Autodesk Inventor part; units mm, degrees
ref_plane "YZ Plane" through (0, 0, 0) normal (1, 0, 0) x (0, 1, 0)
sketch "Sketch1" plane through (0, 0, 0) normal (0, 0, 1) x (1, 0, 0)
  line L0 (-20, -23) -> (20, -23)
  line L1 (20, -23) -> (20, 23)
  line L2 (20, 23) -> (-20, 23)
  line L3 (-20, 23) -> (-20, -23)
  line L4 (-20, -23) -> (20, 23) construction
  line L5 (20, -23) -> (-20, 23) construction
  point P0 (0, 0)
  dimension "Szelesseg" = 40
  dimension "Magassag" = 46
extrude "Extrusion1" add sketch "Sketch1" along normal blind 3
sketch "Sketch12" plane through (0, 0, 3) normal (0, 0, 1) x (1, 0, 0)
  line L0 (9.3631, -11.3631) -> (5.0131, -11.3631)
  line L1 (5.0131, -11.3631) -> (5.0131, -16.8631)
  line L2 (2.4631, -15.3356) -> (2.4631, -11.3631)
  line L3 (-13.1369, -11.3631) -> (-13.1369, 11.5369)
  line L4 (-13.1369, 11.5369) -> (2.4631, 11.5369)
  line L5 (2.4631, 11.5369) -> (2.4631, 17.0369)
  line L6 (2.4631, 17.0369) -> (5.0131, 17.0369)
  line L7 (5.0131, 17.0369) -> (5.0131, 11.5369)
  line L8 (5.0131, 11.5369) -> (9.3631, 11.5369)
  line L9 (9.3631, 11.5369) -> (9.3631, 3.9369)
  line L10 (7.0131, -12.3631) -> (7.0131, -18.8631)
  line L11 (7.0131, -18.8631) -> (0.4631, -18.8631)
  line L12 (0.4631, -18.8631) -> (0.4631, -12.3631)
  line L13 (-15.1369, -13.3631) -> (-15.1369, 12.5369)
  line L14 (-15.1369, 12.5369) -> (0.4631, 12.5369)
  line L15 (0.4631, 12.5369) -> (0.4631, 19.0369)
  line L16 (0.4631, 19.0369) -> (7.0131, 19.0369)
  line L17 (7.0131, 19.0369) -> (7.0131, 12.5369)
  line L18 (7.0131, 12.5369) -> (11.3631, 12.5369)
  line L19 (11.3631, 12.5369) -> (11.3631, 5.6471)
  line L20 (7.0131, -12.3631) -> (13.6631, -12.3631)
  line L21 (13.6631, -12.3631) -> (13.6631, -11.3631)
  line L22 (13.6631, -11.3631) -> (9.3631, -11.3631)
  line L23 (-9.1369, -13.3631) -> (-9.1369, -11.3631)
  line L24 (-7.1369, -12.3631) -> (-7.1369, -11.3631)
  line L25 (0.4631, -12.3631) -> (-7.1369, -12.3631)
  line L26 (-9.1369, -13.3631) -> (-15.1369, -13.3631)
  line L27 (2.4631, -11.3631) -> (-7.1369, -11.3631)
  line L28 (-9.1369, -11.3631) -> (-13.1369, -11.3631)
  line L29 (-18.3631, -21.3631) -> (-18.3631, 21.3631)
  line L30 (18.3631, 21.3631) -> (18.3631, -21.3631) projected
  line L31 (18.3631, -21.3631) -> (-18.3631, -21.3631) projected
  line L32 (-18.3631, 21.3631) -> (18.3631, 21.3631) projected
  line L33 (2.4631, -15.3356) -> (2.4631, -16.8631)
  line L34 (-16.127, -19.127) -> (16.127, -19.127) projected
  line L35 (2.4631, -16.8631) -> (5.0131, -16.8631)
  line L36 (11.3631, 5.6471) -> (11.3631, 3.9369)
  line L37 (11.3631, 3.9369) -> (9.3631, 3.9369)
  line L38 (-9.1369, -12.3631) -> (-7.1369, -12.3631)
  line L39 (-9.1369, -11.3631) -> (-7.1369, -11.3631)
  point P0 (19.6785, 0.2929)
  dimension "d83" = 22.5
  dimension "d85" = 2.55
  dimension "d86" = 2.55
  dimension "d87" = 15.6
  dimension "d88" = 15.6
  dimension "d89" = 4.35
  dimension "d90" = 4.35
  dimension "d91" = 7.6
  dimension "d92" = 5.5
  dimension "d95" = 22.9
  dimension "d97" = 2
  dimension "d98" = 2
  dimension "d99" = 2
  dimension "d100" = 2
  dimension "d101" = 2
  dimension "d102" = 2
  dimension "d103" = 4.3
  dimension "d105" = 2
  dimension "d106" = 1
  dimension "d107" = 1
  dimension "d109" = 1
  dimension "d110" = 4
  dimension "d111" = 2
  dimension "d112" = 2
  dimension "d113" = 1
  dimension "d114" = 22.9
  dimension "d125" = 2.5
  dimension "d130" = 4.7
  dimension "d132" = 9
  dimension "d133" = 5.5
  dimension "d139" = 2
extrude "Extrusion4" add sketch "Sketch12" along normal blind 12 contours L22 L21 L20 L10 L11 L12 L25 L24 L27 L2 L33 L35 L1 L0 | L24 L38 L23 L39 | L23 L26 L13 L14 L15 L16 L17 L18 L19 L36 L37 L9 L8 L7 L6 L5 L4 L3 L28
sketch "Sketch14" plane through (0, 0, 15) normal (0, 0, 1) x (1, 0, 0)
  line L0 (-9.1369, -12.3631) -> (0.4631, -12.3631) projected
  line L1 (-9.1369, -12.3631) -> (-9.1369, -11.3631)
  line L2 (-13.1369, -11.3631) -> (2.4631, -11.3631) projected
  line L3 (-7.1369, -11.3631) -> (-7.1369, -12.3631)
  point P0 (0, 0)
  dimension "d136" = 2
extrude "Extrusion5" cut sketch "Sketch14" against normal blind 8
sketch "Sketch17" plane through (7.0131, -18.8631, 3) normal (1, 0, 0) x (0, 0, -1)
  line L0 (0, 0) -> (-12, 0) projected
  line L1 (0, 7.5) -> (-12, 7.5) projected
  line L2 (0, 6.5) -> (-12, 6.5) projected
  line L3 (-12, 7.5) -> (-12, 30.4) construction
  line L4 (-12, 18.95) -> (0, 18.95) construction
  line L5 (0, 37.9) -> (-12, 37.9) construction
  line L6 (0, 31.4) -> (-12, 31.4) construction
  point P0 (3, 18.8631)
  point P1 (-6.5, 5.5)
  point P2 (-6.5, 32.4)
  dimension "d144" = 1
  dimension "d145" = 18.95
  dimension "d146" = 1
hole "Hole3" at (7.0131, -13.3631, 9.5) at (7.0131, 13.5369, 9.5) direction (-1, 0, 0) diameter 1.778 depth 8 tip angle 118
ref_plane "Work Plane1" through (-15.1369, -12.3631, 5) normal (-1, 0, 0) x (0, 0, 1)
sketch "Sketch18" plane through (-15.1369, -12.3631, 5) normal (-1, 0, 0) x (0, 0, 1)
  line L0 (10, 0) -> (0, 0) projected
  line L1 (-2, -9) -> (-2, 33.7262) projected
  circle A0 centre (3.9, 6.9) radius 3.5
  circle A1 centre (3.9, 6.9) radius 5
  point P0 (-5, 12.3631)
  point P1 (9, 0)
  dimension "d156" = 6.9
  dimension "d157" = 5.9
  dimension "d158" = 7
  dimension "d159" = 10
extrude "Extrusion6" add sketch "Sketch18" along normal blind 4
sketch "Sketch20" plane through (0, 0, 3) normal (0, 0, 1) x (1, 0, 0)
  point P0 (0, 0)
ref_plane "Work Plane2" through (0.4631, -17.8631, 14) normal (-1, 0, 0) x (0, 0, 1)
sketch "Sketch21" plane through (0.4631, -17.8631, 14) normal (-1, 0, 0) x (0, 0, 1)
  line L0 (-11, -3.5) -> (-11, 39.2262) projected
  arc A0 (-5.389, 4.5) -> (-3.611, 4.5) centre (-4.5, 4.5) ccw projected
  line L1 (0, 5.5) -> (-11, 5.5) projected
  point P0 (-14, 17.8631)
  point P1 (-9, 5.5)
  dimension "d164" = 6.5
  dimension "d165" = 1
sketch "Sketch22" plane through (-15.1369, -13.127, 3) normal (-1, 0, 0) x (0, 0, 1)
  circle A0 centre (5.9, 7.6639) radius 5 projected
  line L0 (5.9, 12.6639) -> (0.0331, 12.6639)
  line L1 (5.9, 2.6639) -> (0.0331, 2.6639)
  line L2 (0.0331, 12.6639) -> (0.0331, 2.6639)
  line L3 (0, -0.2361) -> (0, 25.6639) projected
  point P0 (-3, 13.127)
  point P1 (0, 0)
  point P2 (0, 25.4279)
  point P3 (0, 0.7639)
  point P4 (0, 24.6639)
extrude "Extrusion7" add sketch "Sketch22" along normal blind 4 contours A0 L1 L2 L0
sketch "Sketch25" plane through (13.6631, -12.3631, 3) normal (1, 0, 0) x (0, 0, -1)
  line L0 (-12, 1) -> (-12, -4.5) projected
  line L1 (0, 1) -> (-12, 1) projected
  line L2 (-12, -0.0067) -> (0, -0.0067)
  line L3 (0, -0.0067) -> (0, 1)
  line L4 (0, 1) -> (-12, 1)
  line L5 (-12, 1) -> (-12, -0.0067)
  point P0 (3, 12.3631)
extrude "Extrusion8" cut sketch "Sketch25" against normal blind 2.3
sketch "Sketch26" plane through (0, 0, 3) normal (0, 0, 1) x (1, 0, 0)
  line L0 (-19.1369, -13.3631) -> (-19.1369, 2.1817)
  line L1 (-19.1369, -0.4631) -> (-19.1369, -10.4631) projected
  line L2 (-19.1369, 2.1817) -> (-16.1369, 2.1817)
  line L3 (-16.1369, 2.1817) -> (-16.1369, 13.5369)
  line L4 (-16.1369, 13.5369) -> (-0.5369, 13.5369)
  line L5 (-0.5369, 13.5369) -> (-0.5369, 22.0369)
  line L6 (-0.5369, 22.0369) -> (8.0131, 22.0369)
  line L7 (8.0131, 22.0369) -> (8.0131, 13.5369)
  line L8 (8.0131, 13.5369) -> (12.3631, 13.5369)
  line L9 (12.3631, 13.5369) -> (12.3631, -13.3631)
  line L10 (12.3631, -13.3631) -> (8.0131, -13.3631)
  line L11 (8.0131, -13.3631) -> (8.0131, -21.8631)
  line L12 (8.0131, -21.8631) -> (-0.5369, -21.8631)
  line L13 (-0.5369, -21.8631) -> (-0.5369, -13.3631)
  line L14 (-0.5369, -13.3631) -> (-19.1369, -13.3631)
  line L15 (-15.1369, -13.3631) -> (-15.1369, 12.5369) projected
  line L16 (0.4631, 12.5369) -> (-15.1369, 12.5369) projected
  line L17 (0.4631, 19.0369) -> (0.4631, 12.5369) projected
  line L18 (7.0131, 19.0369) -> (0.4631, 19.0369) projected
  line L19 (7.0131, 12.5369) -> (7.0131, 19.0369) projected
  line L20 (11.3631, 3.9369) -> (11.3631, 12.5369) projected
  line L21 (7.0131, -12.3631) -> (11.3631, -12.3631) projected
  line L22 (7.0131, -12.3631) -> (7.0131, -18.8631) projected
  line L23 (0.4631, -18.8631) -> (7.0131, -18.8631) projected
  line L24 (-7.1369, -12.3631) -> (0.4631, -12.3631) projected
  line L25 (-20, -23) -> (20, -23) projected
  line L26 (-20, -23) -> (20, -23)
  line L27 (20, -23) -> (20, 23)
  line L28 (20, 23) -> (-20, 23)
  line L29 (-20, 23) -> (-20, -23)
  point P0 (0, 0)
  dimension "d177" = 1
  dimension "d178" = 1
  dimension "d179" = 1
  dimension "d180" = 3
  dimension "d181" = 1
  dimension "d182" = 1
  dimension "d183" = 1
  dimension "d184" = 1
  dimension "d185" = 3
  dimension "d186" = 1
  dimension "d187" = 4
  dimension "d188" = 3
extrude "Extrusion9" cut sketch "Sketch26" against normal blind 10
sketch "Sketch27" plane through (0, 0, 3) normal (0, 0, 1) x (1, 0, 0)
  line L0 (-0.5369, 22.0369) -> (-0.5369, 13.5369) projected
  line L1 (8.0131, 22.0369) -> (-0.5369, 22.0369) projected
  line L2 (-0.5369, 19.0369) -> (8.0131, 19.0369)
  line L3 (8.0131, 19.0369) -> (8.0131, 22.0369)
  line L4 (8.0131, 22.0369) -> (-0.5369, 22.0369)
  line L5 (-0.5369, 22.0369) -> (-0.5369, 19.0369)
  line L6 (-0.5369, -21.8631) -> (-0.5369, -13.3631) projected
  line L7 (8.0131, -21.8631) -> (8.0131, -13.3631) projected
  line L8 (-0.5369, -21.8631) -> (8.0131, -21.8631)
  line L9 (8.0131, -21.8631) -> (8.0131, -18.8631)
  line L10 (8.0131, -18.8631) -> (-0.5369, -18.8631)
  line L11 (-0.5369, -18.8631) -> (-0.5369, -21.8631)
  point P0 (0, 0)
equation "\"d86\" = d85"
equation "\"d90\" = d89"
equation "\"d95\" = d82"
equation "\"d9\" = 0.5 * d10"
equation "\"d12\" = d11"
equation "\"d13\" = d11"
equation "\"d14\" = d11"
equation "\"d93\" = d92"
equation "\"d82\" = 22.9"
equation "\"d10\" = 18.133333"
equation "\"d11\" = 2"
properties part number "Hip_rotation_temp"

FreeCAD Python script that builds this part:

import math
import FreeCAD as App
import Part
import Sketcher
from FreeCAD import Vector


def add_polygon(sketch, points):
    """Adds a closed chain of lines whose ends are joined by coincident constraints."""
    first, n = sketch.GeometryCount, len(points)
    for a, b in zip(points, points[1:] + points[:1]):
        sketch.addGeometry(Part.LineSegment(App.Vector(*a, 0), App.Vector(*b, 0)), False)
    for i in range(n):
        sketch.addConstraint(Sketcher.Constraint("Coincident", first + i, 2, first + (i + 1) % n, 1))

doc = App.newDocument("Part")
body = doc.addObject("PartDesign::Body", "Body")

# Sketch on XY plane
sketch1 = body.newObject("Sketcher::SketchObject", "Sketch")
sketch1.AttachmentSupport = (doc.getObject("XY_Plane"), [""])
sketch1.MapMode = "FlatFace"
add_polygon(sketch1, [(-20, 23), (-20, -23), (20, -23), (20, 23)])  # lines 0-3
sketch1.addConstraint(Sketcher.Constraint("Vertical", 0))
sketch1.addConstraint(Sketcher.Constraint("Horizontal", 1))
sketch1.addConstraint(Sketcher.Constraint("Vertical", 2))
sketch1.addConstraint(Sketcher.Constraint("Horizontal", 3))
sketch1.addConstraint(Sketcher.Constraint("Symmetric", 0, 2, 2, 2, -1, 1))
sketch1.addConstraint(Sketcher.Constraint("DistanceX", 1, 1, 1, 2, 40.0))
sketch1.addConstraint(Sketcher.Constraint("DistanceY", 0, 2, 0, 1, 46.0))
pad1 = body.newObject("PartDesign::Pad", "Pad")
pad1.Profile = sketch1
pad1.Length = 3

# Sketch on XY plane
sketch2 = body.newObject("Sketcher::SketchObject", "Sketch001")
sketch2.AttachmentSupport = (doc.getObject("XY_Plane"), [""])
sketch2.MapMode = "FlatFace"
sketch2.AttachmentOffset = App.Placement(Vector(0, 0, 3), App.Rotation())
add_polygon(sketch2, [(13.7, -11.4), (5, -11.4), (5, -16.9), (2.5, -16.9), (2.5, -11.4), (-13.1, -11.4), (-13.1, 11.5), (2.5, 11.5), (2.5, 17), (5, 17), (5, 11.5), (9.4, 11.5), (9.4, 3.9), (11.4, 3.9), (11.4, 12.5), (7, 12.5), (7, 19), (0.5, 19), (0.5, 12.5), (-15.1, 12.5), (-15.1, -13.4), (-9.1, -13.4), (-9.1, -12.4), (0.5, -12.4), (0.5, -18.9), (7, -18.9), (7, -12.4), (13.7, -12.4)])  # lines 0-27
sketch2.addConstraint(Sketcher.Constraint("Horizontal", 0))
sketch2.addConstraint(Sketcher.Constraint("Vertical", 1))
sketch2.addConstraint(Sketcher.Constraint("Horizontal", 2))
sketch2.addConstraint(Sketcher.Constraint("Vertical", 3))
sketch2.addConstraint(Sketcher.Constraint("Horizontal", 4))
sketch2.addConstraint(Sketcher.Constraint("Vertical", 5))
sketch2.addConstraint(Sketcher.Constraint("Horizontal", 6))
sketch2.addConstraint(Sketcher.Constraint("Vertical", 7))
sketch2.addConstraint(Sketcher.Constraint("Horizontal", 8))
sketch2.addConstraint(Sketcher.Constraint("Vertical", 9))
sketch2.addConstraint(Sketcher.Constraint("Horizontal", 10))
sketch2.addConstraint(Sketcher.Constraint("Vertical", 11))
sketch2.addConstraint(Sketcher.Constraint("Horizontal", 12))
sketch2.addConstraint(Sketcher.Constraint("Vertical", 13))
sketch2.addConstraint(Sketcher.Constraint("Horizontal", 14))
sketch2.addConstraint(Sketcher.Constraint("Vertical", 15))
sketch2.addConstraint(Sketcher.Constraint("Horizontal", 16))
sketch2.addConstraint(Sketcher.Constraint("Vertical", 17))
sketch2.addConstraint(Sketcher.Constraint("Horizontal", 18))
sketch2.addConstraint(Sketcher.Constraint("Vertical", 19))
sketch2.addConstraint(Sketcher.Constraint("Horizontal", 20))
sketch2.addConstraint(Sketcher.Constraint("Vertical", 21))
sketch2.addConstraint(Sketcher.Constraint("Horizontal", 22))
sketch2.addConstraint(Sketcher.Constraint("Vertical", 23))
sketch2.addConstraint(Sketcher.Constraint("Horizontal", 24))
sketch2.addConstraint(Sketcher.Constraint("Vertical", 25))
sketch2.addConstraint(Sketcher.Constraint("Horizontal", 26))
sketch2.addConstraint(Sketcher.Constraint("Vertical", 27))
sketch2.addConstraint(Sketcher.Constraint("Horizontal", 0, 2, 3, 2))
sketch2.addConstraint(Sketcher.Constraint("Horizontal", 6, 2, 9, 2))
sketch2.addConstraint(Sketcher.Constraint("Horizontal", 14, 2, 17, 2))
sketch2.addConstraint(Sketcher.Constraint("Horizontal", 22, 2, 25, 2))
sketch2.addConstraint(Sketcher.Constraint("Vertical", 3, 2, 6, 2))
sketch2.addConstraint(Sketcher.Constraint("Vertical", 1, 2, 8, 2))
sketch2.addConstraint(Sketcher.Constraint("Vertical", 17, 2, 22, 2))
sketch2.addConstraint(Sketcher.Constraint("Vertical", 15, 2, 24, 2))
sketch2.addConstraint(Sketcher.Constraint("Equal", 10, 14))
sketch2.addConstraint(Sketcher.Constraint("Equal", 6, 18))
sketch2.addConstraint(Sketcher.Constraint("Equal", 3, 7))
sketch2.addConstraint(Sketcher.Constraint("Equal", 17, 23))
sketch2.addConstraint(Sketcher.Constraint("Equal", 21, 27))
sketch2.addConstraint(Sketcher.Constraint("DistanceX", 12, 1, 12, 2, 2.0))
sketch2.addConstraint(Sketcher.Constraint("DistanceY", 21, 1, 21, 2, 1.0))
sketch2.addConstraint(Sketcher.Constraint("DistanceX", 4, 2, 4, 1, 15.6))
sketch2.addConstraint(Sketcher.Constraint("DistanceY", 1, 2, 1, 1, 5.5))
sketch2.addConstraint(Sketcher.Constraint("DistanceY", 5, 1, 5, 2, 22.9))
sketch2.addConstraint(Sketcher.Constraint("DistanceY", 11, 2, 11, 1, 7.6))
sketch2.addConstraint(Sketcher.Constraint("DistanceY", 10, 2, 13, 2, 1.0))
sketch2.addConstraint(Sketcher.Constraint("DistanceY", 8, 2, 15, 2, 2.0))
sketch2.addConstraint(Sketcher.Constraint("DistanceX", 16, 2, 7, 2, 2.0))
sketch2.addConstraint(Sketcher.Constraint("DistanceX", 4, 2, 20, 2, 4.0))
sketch2.addConstraint(Sketcher.Constraint("DistanceX", 2, 2, 2, 1, 2.55))
sketch2.addConstraint(Sketcher.Constraint("DistanceX", 10, 1, 10, 2, 4.35))
sketch2.addConstraint(Sketcher.Constraint("DistanceX", 0, 2, 0, 1, 8.65))
sketch2.addConstraint(Sketcher.Constraint("DistanceX", -1, 1, 0, 2, 5.013))
sketch2.addConstraint(Sketcher.Constraint("DistanceY", 0, 2, -1, 1, 11.363))
pad2 = body.newObject("PartDesign::Pad", "Pad001")
pad2.Profile = sketch2
pad2.Length = 12

# Sketch on XY plane
sketch3 = body.newObject("Sketcher::SketchObject", "Sketch002")
sketch3.AttachmentSupport = (doc.getObject("XY_Plane"), [""])
sketch3.MapMode = "FlatFace"
sketch3.AttachmentOffset = App.Placement(Vector(0, 0, 15), App.Rotation())
add_polygon(sketch3, [(-9.1, -11.4), (-9.1, -12.4), (-7.1, -12.4), (-7.1, -11.4)])  # lines 0-3
sketch3.addConstraint(Sketcher.Constraint("Vertical", 0))
sketch3.addConstraint(Sketcher.Constraint("Horizontal", 1))
sketch3.addConstraint(Sketcher.Constraint("Vertical", 2))
sketch3.addConstraint(Sketcher.Constraint("Horizontal", 3))
sketch3.addConstraint(Sketcher.Constraint("DistanceX", 1, 1, 1, 2, 2.0))
sketch3.addConstraint(Sketcher.Constraint("DistanceY", 0, 2, 0, 1, 1.0))
sketch3.addConstraint(Sketcher.Constraint("DistanceX", 0, 2, -1, 1, 9.137))
sketch3.addConstraint(Sketcher.Constraint("DistanceY", 0, 2, -1, 1, 12.363))
pocket1 = body.newObject("PartDesign::Pocket", "Pocket")
pocket1.Profile = sketch3
pocket1.Length = 8

# Sketch on YZ plane
sketch4 = body.newObject("Sketcher::SketchObject", "Sketch003")
sketch4.AttachmentSupport = (doc.getObject("YZ_Plane"), [""])
sketch4.MapMode = "FlatFace"
sketch4.AttachmentOffset = App.Placement(Vector(0, 0, 7.0131), App.Rotation())
sketch4.addGeometry(Part.Circle(Vector(-13.4, 9.5, 0), Vector(0, 0, 1), 0.9), False)
sketch4.addGeometry(Part.Circle(Vector(13.5, 9.5, 0), Vector(0, 0, 1), 0.9), False)
sketch4.addConstraint(Sketcher.Constraint("Equal", 0, 1))
sketch4.addConstraint(Sketcher.Constraint("Horizontal", 0, 3, 1, 3))
sketch4.addConstraint(Sketcher.Constraint("Diameter", 0, 1.778))
sketch4.addConstraint(Sketcher.Constraint("DistanceY", -1, 1, 0, 3, 9.5))
sketch4.addConstraint(Sketcher.Constraint("DistanceX", 0, 3, 1, 3, 26.9))
sketch4.addConstraint(Sketcher.Constraint("DistanceX", 0, 3, -1, 1, 13.363))
doc.recompute()
hole = body.newObject("PartDesign::Hole", "Hole")
hole.Profile = sketch4
hole.ThreadType = "None"
hole.Diameter = 1.778
hole.DepthType = "Dimension"
hole.Depth = 8
hole.DrillPoint = "Angled"
hole.DrillPointAngle = 118

# Sketch on YZ plane
sketch5 = body.newObject("Sketcher::SketchObject", "Sketch004")
sketch5.AttachmentSupport = (doc.getObject("YZ_Plane"), [""])
sketch5.MapMode = "FlatFace"
sketch5.AttachmentOffset = App.Placement(Vector(0, 0, -15.1369), App.Rotation())
sketch5.addGeometry(Part.Circle(Vector(-5.5, 8.9, 0), Vector(0, 0, 1), 5), False)
sketch5.addGeometry(Part.Circle(Vector(-5.5, 8.9, 0), Vector(0, 0, 1), 3.5), False)
sketch5.addConstraint(Sketcher.Constraint("Coincident", 1, 3, 0, 3))
sketch5.addConstraint(Sketcher.Constraint("Diameter", 0, 10.0))
sketch5.addConstraint(Sketcher.Constraint("Diameter", 1, 7.0))
sketch5.addConstraint(Sketcher.Constraint("DistanceY", -1, 1, 0, 3, 8.9))
sketch5.addConstraint(Sketcher.Constraint("DistanceX", 0, 3, -1, 1, 5.463))
pad3 = body.newObject("PartDesign::Pad", "Pad002")
pad3.Profile = sketch5
pad3.Length = 4
pad3.Reversed = True

# Sketch on YZ plane
sketch6 = body.newObject("Sketcher::SketchObject", "Sketch005")
sketch6.AttachmentSupport = (doc.getObject("YZ_Plane"), [""])
sketch6.MapMode = "FlatFace"
sketch6.AttachmentOffset = App.Placement(Vector(0, 0, -15.1369), App.Rotation())
sketch6.addGeometry(Part.ArcOfCircle(Part.Circle(Vector(-5, 9, 0), Vector(0, 0, 1), 5), math.radians(180), math.radians(360)), False)
sketch6.addGeometry(Part.LineSegment(Vector(0, 9, 0), Vector(0, 3, 0)), False)
sketch6.addGeometry(Part.LineSegment(Vector(0, 3, 0), Vector(-10, 3, 0)), False)
sketch6.addGeometry(Part.LineSegment(Vector(-10, 3, 0), Vector(-10, 9, 0)), False)
sketch6.addConstraint(Sketcher.Constraint("Tangent", 0, 2, 1, 1))
sketch6.addConstraint(Sketcher.Constraint("Coincident", 1, 2, 2, 1))
sketch6.addConstraint(Sketcher.Constraint("Coincident", 2, 2, 3, 1))
sketch6.addConstraint(Sketcher.Constraint("Tangent", 3, 2, 0, 1))
sketch6.addConstraint(Sketcher.Constraint("Vertical", 1))
sketch6.addConstraint(Sketcher.Constraint("Horizontal", 2))
sketch6.addConstraint(Sketcher.Constraint("Vertical", 3))
sketch6.addConstraint(Sketcher.Constraint("Radius", 0, 5.0))
sketch6.addConstraint(Sketcher.Constraint("DistanceY", -1, 1, 0, 3, 8.9))
sketch6.addConstraint(Sketcher.Constraint("DistanceY", 1, 2, 1, 1, 5.867))
sketch6.addConstraint(Sketcher.Constraint("DistanceX", 0, 3, -1, 1, 5.463))
pad4 = body.newObject("PartDesign::Pad", "Pad003")
pad4.Profile = sketch6
pad4.Length = 4
pad4.Reversed = True

# Sketch on YZ plane
sketch7 = body.newObject("Sketcher::SketchObject", "Sketch006")
sketch7.AttachmentSupport = (doc.getObject("YZ_Plane"), [""])
sketch7.MapMode = "FlatFace"
sketch7.AttachmentOffset = App.Placement(Vector(0, 0, 13.6631), App.Rotation())
add_polygon(sketch7, [(-11.4, 3), (-11.4, 15), (-12.4, 15), (-12.4, 3)])  # lines 0-3
sketch7.addConstraint(Sketcher.Constraint("Vertical", 0))
sketch7.addConstraint(Sketcher.Constraint("Horizontal", 1))
sketch7.addConstraint(Sketcher.Constraint("Vertical", 2))
sketch7.addConstraint(Sketcher.Constraint("Horizontal", 3))
sketch7.addConstraint(Sketcher.Constraint("DistanceY", 0, 1, 0, 2, 12.0))
sketch7.addConstraint(Sketcher.Constraint("DistanceY", -1, 1, 0, 2, 15.0))
sketch7.addConstraint(Sketcher.Constraint("DistanceX", 1, 2, 1, 1, 1.0067))
sketch7.addConstraint(Sketcher.Constraint("DistanceX", 0, 2, -1, 1, 11.363))
pocket2 = body.newObject("PartDesign::Pocket", "Pocket001")
pocket2.Profile = sketch7
pocket2.Length = 2.3

# Sketch on XY plane
sketch8 = body.newObject("Sketcher::SketchObject", "Sketch007")
sketch8.AttachmentSupport = (doc.getObject("XY_Plane"), [""])
sketch8.MapMode = "FlatFace"
sketch8.AttachmentOffset = App.Placement(Vector(0, 0, 3), App.Rotation())
add_polygon(sketch8, [(-20, 23), (-20, -23), (20, -23), (20, 23)])  # lines 0-3
add_polygon(sketch8, [(-0.5, -13.4), (-19.1, -13.4), (-19.1, 2.2), (-16.1, 2.2), (-16.1, 13.5), (-0.5, 13.5), (-0.5, 22), (8, 22), (8, 13.5), (12.4, 13.5), (12.4, -13.4), (8, -13.4), (8, -21.9), (-0.5, -21.9)])  # lines 4-17
sketch8.addConstraint(Sketcher.Constraint("Vertical", 0))
sketch8.addConstraint(Sketcher.Constraint("Horizontal", 1))
sketch8.addConstraint(Sketcher.Constraint("Vertical", 2))
sketch8.addConstraint(Sketcher.Constraint("Horizontal", 3))
sketch8.addConstraint(Sketcher.Constraint("Horizontal", 4))
sketch8.addConstraint(Sketcher.Constraint("Vertical", 5))
sketch8.addConstraint(Sketcher.Constraint("Horizontal", 6))
sketch8.addConstraint(Sketcher.Constraint("Vertical", 7))
sketch8.addConstraint(Sketcher.Constraint("Horizontal", 8))
sketch8.addConstraint(Sketcher.Constraint("Vertical", 9))
sketch8.addConstraint(Sketcher.Constraint("Horizontal", 10))
sketch8.addConstraint(Sketcher.Constraint("Vertical", 11))
sketch8.addConstraint(Sketcher.Constraint("Horizontal", 12))
sketch8.addConstraint(Sketcher.Constraint("Vertical", 13))
sketch8.addConstraint(Sketcher.Constraint("Horizontal", 14))
sketch8.addConstraint(Sketcher.Constraint("Vertical", 15))
sketch8.addConstraint(Sketcher.Constraint("Horizontal", 16))
sketch8.addConstraint(Sketcher.Constraint("Vertical", 17))
sketch8.addConstraint(Sketcher.Constraint("Symmetric", 0, 2, 2, 2, -1, 1))
sketch8.addConstraint(Sketcher.Constraint("Horizontal", 8, 2, 11, 2))
sketch8.addConstraint(Sketcher.Constraint("Horizontal", 4, 2, 13, 2))
sketch8.addConstraint(Sketcher.Constraint("Vertical", 11, 2, 14, 2))
sketch8.addConstraint(Sketcher.Constraint("Vertical", 9, 2, 16, 2))
sketch8.addConstraint(Sketcher.Constraint("Equal", 11, 15))
sketch8.addConstraint(Sketcher.Constraint("DistanceX", 6, 1, 6, 2, 3.0))
sketch8.addConstraint(Sketcher.Constraint("DistanceX", 1, 1, 1, 2, 40.0))
sketch8.addConstraint(Sketcher.Constraint("DistanceY", 0, 2, 0, 1, 46.0))
sketch8.addConstraint(Sketcher.Constraint("DistanceX", 4, 2, 4, 1, 18.6))
sketch8.addConstraint(Sketcher.Constraint("DistanceY", 9, 1, 9, 2, 8.5))
sketch8.addConstraint(Sketcher.Constraint("DistanceY", 13, 2, 13, 1, 26.9))
sketch8.addConstraint(Sketcher.Constraint("DistanceX", 10, 1, 10, 2, 8.55))
sketch8.addConstraint(Sketcher.Constraint("DistanceX", 12, 1, 12, 2, 4.35))
sketch8.addConstraint(Sketcher.Constraint("DistanceY", 5, 1, 5, 2, 15.5448))
sketch8.addConstraint(Sketcher.Constraint("DistanceX", 4, 2, -1, 1, 19.137))
sketch8.addConstraint(Sketcher.Constraint("DistanceY", 4, 2, -1, 1, 13.363))
pocket3 = body.newObject("PartDesign::Pocket", "Pocket002")
pocket3.Profile = sketch8
pocket3.Length = 10

doc.recompute()
